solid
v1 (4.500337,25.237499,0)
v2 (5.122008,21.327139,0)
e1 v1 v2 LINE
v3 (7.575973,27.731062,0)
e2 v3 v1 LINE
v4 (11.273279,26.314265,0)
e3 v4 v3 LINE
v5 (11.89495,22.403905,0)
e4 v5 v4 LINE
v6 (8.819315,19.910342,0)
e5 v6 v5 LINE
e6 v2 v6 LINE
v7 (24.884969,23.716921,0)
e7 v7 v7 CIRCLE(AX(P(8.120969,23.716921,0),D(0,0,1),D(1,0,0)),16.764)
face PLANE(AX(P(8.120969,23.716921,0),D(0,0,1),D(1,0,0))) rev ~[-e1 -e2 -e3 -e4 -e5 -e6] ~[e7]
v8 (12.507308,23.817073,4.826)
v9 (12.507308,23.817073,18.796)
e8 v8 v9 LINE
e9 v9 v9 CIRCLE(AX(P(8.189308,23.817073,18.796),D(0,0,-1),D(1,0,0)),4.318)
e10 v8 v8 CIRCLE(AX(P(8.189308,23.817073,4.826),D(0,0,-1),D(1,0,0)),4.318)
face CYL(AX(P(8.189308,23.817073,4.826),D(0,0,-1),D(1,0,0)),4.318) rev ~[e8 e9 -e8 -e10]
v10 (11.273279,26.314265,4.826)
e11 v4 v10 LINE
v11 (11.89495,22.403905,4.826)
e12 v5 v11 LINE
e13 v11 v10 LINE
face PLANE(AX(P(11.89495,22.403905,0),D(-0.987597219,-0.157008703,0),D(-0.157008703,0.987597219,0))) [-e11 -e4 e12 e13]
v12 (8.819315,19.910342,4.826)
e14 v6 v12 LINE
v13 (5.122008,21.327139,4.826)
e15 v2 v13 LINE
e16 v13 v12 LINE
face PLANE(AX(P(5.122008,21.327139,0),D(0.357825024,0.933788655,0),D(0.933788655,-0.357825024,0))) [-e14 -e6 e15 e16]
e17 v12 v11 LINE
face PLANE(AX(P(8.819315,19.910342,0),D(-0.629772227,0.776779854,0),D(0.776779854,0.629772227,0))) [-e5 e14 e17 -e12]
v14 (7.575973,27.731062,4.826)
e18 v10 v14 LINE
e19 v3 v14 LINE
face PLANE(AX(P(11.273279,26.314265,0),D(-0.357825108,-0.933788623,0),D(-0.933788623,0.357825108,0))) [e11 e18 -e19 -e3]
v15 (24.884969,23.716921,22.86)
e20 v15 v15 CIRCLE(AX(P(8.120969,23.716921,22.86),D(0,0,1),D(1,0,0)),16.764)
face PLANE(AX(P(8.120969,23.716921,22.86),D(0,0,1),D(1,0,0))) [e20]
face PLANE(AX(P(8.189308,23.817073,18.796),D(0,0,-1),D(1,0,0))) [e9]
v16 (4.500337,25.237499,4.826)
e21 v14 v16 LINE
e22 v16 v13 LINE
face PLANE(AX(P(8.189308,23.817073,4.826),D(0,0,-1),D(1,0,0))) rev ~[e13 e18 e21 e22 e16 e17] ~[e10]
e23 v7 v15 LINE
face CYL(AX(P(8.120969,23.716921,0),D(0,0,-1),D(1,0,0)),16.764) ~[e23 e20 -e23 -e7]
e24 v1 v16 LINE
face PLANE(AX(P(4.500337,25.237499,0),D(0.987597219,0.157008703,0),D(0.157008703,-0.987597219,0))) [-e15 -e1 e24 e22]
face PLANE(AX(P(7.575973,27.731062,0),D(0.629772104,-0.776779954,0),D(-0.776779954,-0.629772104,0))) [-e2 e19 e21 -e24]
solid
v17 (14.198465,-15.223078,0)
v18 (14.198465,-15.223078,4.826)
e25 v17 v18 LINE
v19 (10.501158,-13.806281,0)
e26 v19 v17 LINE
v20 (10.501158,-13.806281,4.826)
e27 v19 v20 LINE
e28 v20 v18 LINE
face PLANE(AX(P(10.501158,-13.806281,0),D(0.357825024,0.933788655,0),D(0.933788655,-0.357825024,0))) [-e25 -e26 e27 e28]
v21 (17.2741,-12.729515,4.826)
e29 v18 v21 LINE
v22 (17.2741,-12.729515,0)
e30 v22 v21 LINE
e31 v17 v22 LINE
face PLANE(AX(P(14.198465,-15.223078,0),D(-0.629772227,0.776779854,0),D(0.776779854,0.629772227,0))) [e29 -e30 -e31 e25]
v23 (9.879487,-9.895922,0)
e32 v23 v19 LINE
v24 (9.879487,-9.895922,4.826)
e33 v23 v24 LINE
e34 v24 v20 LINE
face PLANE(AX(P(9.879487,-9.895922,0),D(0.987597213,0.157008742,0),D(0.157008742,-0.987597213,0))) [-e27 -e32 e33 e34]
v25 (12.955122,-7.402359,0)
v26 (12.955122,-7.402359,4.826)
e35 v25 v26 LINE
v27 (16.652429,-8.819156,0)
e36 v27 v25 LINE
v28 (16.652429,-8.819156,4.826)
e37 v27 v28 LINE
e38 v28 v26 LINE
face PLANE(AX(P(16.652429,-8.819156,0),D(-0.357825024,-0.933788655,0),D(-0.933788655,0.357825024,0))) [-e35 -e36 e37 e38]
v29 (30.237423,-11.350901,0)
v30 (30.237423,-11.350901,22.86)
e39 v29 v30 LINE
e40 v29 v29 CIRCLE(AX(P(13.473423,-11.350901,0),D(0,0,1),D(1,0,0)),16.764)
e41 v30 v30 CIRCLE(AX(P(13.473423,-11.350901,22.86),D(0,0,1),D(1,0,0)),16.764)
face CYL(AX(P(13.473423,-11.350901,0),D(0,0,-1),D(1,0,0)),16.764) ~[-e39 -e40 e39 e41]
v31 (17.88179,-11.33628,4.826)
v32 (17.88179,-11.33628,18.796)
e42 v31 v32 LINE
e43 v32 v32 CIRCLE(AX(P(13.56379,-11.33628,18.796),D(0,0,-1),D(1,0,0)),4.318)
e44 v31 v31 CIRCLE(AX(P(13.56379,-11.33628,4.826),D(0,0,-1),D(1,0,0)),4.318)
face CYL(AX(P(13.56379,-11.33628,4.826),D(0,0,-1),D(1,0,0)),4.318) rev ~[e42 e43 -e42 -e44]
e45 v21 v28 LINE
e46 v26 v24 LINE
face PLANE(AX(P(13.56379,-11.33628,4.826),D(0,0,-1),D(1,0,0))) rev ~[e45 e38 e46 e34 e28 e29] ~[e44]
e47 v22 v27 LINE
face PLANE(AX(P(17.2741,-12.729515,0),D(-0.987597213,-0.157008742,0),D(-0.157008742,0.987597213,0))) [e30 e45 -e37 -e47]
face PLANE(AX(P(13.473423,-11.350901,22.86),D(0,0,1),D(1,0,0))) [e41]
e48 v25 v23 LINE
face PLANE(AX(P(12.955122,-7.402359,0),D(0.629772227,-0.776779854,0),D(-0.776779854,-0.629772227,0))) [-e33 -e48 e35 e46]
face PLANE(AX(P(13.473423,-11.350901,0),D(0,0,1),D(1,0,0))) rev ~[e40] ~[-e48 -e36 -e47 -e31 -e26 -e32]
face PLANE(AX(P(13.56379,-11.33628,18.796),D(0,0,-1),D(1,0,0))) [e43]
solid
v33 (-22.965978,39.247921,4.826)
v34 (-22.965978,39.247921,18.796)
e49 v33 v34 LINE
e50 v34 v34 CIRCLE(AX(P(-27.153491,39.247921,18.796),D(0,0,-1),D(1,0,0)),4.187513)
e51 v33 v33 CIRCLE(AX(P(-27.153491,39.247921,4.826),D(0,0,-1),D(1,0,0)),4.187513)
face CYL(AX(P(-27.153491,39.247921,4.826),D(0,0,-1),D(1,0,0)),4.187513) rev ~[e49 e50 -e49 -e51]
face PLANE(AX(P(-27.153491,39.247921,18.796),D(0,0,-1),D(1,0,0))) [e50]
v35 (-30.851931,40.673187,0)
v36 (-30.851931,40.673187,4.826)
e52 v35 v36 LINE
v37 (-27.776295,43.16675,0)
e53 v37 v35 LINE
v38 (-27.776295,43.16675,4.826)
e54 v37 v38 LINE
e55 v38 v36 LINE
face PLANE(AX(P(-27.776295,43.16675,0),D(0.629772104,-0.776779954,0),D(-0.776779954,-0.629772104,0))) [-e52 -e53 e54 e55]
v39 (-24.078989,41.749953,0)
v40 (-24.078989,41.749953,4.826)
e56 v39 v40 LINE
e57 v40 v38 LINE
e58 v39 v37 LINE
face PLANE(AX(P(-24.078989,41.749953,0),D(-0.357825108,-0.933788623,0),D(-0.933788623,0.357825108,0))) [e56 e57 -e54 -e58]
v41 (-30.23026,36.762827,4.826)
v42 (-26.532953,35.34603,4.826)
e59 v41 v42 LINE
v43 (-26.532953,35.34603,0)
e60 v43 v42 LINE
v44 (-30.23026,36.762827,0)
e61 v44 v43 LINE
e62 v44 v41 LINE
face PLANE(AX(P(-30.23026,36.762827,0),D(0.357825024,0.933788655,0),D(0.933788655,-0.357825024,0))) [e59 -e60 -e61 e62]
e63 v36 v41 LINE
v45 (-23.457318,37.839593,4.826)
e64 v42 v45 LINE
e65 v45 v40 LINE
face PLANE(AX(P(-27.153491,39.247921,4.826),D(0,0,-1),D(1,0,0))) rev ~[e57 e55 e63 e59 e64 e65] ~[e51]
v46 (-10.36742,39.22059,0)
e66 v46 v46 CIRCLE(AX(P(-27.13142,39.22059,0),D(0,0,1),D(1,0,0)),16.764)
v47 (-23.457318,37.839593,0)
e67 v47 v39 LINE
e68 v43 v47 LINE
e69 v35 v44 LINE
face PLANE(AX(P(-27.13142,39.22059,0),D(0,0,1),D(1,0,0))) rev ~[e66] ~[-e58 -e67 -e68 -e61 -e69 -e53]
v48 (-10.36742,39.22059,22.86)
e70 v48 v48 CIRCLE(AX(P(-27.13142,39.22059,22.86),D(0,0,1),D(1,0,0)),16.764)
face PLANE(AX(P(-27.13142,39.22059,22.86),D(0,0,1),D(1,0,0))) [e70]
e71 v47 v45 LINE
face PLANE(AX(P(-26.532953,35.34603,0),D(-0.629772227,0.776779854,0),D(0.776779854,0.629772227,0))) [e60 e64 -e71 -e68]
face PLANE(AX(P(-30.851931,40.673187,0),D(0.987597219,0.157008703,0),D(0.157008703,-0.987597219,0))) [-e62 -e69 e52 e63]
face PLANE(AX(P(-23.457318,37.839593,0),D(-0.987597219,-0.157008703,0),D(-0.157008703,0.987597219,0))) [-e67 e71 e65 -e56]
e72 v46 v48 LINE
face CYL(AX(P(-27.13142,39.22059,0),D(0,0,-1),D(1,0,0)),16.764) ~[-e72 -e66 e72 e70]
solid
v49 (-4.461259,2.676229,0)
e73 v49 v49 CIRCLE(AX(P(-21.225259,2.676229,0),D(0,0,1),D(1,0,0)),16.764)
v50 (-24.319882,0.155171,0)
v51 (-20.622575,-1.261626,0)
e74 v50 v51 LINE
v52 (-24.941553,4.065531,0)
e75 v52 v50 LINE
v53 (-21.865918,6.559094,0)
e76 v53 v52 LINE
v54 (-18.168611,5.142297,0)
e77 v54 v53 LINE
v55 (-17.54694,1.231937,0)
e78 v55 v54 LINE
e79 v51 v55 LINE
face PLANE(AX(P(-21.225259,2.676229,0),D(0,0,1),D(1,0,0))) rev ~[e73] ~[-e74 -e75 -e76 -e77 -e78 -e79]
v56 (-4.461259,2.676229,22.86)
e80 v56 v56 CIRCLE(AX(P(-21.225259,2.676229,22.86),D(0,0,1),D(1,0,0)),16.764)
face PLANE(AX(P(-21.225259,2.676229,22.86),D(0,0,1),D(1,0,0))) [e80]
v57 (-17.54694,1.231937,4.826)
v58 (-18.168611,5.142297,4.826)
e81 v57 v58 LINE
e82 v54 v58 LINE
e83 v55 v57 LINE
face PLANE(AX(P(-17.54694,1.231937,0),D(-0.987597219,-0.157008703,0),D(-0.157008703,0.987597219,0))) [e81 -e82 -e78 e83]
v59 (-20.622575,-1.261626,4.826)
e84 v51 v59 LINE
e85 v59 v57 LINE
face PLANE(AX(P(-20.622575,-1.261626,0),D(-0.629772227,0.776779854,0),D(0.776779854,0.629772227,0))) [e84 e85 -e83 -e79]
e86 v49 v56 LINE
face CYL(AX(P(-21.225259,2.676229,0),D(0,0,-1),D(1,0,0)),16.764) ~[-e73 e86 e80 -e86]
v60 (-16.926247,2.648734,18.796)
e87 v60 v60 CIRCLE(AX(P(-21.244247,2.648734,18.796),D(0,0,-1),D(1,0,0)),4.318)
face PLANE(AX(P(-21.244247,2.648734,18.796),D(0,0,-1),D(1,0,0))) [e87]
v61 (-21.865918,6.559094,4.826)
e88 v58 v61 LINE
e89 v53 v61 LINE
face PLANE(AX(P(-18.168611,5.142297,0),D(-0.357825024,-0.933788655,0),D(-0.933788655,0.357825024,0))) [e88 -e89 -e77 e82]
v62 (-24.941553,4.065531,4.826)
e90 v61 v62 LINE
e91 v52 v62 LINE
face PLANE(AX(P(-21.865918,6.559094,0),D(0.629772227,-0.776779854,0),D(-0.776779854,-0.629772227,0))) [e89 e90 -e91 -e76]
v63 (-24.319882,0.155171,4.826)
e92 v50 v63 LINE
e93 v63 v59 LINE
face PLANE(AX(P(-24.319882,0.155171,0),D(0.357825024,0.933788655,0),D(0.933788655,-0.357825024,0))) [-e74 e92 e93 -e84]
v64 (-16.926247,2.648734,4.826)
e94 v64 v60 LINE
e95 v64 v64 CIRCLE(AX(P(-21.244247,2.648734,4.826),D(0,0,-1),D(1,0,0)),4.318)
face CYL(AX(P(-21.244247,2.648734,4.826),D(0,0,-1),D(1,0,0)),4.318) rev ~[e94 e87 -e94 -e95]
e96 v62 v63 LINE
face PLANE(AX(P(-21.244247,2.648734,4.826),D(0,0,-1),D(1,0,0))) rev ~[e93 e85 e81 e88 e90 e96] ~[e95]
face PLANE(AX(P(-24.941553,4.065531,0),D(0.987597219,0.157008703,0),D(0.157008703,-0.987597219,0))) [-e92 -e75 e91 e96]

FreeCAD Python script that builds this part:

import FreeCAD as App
import Part
import Sketcher
Q = App.Units.Quantity


def add_polygon(sketch, points):
    """Adds a closed chain of lines whose ends are joined by coincident constraints."""
    first, n = sketch.GeometryCount, len(points)
    for a, b in zip(points, points[1:] + points[:1]):
        sketch.addGeometry(Part.LineSegment(App.Vector(*a, 0), App.Vector(*b, 0)), False)
    for i in range(n):
        sketch.addConstraint(Sketcher.Constraint("Coincident", first + i, 2, first + (i + 1) % n, 1))

doc = App.newDocument("Part")
body = doc.addObject("PartDesign::Body", "Body")
body.AllowCompound = True

# Sketch on XY plane
sketch1 = body.newObject("Sketcher::SketchObject", "Sketch")
sketch1.AttachmentSupport = (doc.getObject("XY_Plane"), [""])
sketch1.MapMode = "FlatFace"
sketch1.addGeometry(Part.Circle(App.Vector(-27, 39, 0), App.Vector(0, 0, 1), 17), False)
sketch1.addGeometry(Part.Circle(App.Vector(8, 24, 0), App.Vector(0, 0, 1), 17), False)
sketch1.addGeometry(Part.Circle(App.Vector(-21, 3, 0), App.Vector(0, 0, 1), 17), False)
sketch1.addGeometry(Part.Circle(App.Vector(13, -11, 0), App.Vector(0, 0, 1), 17), False)
sketch1.addConstraint(Sketcher.Constraint("Equal", 0, 1))
sketch1.addConstraint(Sketcher.Constraint("Equal", 1, 2))
sketch1.addConstraint(Sketcher.Constraint("Equal", 2, 3))
sketch1.addConstraint(Sketcher.Constraint("Diameter", 0, Q("1.32 in")))
sketch1.addConstraint(Sketcher.Constraint("DistanceY", 3, 3, -1, 1, Q("11.350901 mm")))
sketch1.addConstraint(Sketcher.Constraint("DistanceX", 0, 3, -1, 1, Q("27.13142 mm")))
sketch1.addConstraint(Sketcher.Constraint("DistanceY", -1, 1, 0, 3, Q("39.22059 mm")))
sketch1.addConstraint(Sketcher.Constraint("DistanceX", -1, 1, 1, 3, Q("8.120969 mm")))
sketch1.addConstraint(Sketcher.Constraint("DistanceY", -1, 1, 1, 3, Q("23.716921 mm")))
sketch1.addConstraint(Sketcher.Constraint("DistanceX", 2, 3, -1, 1, Q("21.225259 mm")))
sketch1.addConstraint(Sketcher.Constraint("DistanceY", -1, 1, 2, 3, Q("2.676229 mm")))
sketch1.addConstraint(Sketcher.Constraint("DistanceX", -1, 1, 3, 3, Q("13.473423 mm")))
pad1 = body.newObject("PartDesign::Pad", "Pad")
pad1.Profile = sketch1
pad1.Length = Q("0.9 in")

# Sketch on XY plane
sketch2 = body.newObject("Sketcher::SketchObject", "Sketch001")
sketch2.AttachmentSupport = (doc.getObject("XY_Plane"), [""])
sketch2.MapMode = "FlatFace"
add_polygon(sketch2, [(-23.5, 37.8), (-24.1, 41.7), (-27.8, 43.2), (-30.9, 40.7), (-30.2, 36.8), (-26.5, 35.3)])  # lines 0-5
add_polygon(sketch2, [(11.9, 22.4), (11.3, 26.3), (7.6, 27.7), (4.5, 25.2), (5.1, 21.3), (8.8, 19.9)])  # lines 6-11
add_polygon(sketch2, [(-17.5, 1.2), (-18.2, 5.1), (-21.9, 6.6), (-24.9, 4.1), (-24.3, 0.2), (-20.6, -1.3)])  # lines 12-17
add_polygon(sketch2, [(17.3, -12.7), (16.7, -8.8), (13, -7.4), (9.9, -9.9), (10.5, -13.8), (14.2, -15.2)])  # lines 18-23
sketch2.addConstraint(Sketcher.Constraint("Parallel", 0, 3))
sketch2.addConstraint(Sketcher.Constraint("Parallel", 1, 4))
sketch2.addConstraint(Sketcher.Constraint("Parallel", 2, 5))
sketch2.addConstraint(Sketcher.Constraint("Parallel", 3, 6))
sketch2.addConstraint(Sketcher.Constraint("Parallel", 4, 7))
sketch2.addConstraint(Sketcher.Constraint("Parallel", 5, 8))
sketch2.addConstraint(Sketcher.Constraint("Parallel", 6, 9))
sketch2.addConstraint(Sketcher.Constraint("Parallel", 7, 10))
sketch2.addConstraint(Sketcher.Constraint("Parallel", 8, 11))
sketch2.addConstraint(Sketcher.Constraint("Parallel", 9, 12))
sketch2.addConstraint(Sketcher.Constraint("Parallel", 10, 13))
sketch2.addConstraint(Sketcher.Constraint("Parallel", 11, 14))
sketch2.addConstraint(Sketcher.Constraint("Parallel", 12, 15))
sketch2.addConstraint(Sketcher.Constraint("Parallel", 13, 16))
sketch2.addConstraint(Sketcher.Constraint("Parallel", 14, 17))
sketch2.addConstraint(Sketcher.Constraint("Parallel", 15, 18))
sketch2.addConstraint(Sketcher.Constraint("Parallel", 16, 19))
sketch2.addConstraint(Sketcher.Constraint("Parallel", 17, 20))
sketch2.addConstraint(Sketcher.Constraint("Parallel", 18, 21))
sketch2.addConstraint(Sketcher.Constraint("Parallel", 19, 22))
sketch2.addConstraint(Sketcher.Constraint("Parallel", 20, 23))
sketch2.addConstraint(Sketcher.Constraint("Equal", 0, 1))
sketch2.addConstraint(Sketcher.Constraint("Equal", 1, 2))
sketch2.addConstraint(Sketcher.Constraint("Equal", 2, 3))
sketch2.addConstraint(Sketcher.Constraint("Equal", 5, 6))
sketch2.addConstraint(Sketcher.Constraint("Equal", 6, 7))
sketch2.addConstraint(Sketcher.Constraint("Equal", 7, 8))
sketch2.addConstraint(Sketcher.Constraint("Equal", 8, 9))
sketch2.addConstraint(Sketcher.Constraint("Equal", 11, 12))
sketch2.addConstraint(Sketcher.Constraint("Equal", 12, 13))
sketch2.addConstraint(Sketcher.Constraint("Equal", 13, 14))
sketch2.addConstraint(Sketcher.Constraint("Equal", 14, 15))
sketch2.addConstraint(Sketcher.Constraint("Equal", 17, 18))
sketch2.addConstraint(Sketcher.Constraint("Equal", 18, 19))
sketch2.addConstraint(Sketcher.Constraint("Equal", 19, 20))
sketch2.addConstraint(Sketcher.Constraint("Equal", 20, 21))
sketch2.addConstraint(Sketcher.Constraint("DistanceY", -1, 1, 8, 2, Q("25.237499 mm")))
sketch2.addConstraint(Sketcher.Constraint("DistanceX", -1, 1, 23, 2, Q("17.2741 mm")))
sketch2.addConstraint(Sketcher.Constraint("DistanceX", 5, 2, 13, 2, Q("1.5914 mm")))
sketch2.addConstraint(Sketcher.Constraint("DistanceY", 13, 2, 5, 2, Q("31.280499 mm")))
sketch2.addConstraint(Sketcher.Constraint("DistanceY", 19, 2, 10, 2, Q("27.312701 mm")))
sketch2.addConstraint(Sketcher.Constraint("Distance", 0, Q("3.959468 mm")))
sketch2.addConstraint(Sketcher.Constraint("DistanceX", 0, 2, -1, 1, Q("24.078989 mm")))
sketch2.addConstraint(Sketcher.Constraint("DistanceY", -1, 1, 1, 2, Q("43.16675 mm")))
sketch2.addConstraint(Sketcher.Constraint("DistanceX", 2, 2, -1, 1, Q("30.851931 mm")))
sketch2.addConstraint(Sketcher.Constraint("DistanceX", 3, 2, -1, 1, Q("30.23026 mm")))
sketch2.addConstraint(Sketcher.Constraint("DistanceY", -1, 1, 4, 2, Q("35.34603 mm")))
sketch2.addConstraint(Sketcher.Constraint("DistanceX", -1, 1, 6, 2, Q("11.273279 mm")))
pocket1 = body.newObject("PartDesign::Pocket", "Pocket")
pocket1.Profile = sketch2
pocket1.Length = Q("0.19 in")
pocket1.Reversed = True

# Sketch on XY plane
sketch3 = body.newObject("Sketcher::SketchObject", "Sketch002")
sketch3.AttachmentSupport = (doc.getObject("XY_Plane"), [""])
sketch3.MapMode = "FlatFace"
sketch3.AttachmentOffset = App.Placement(App.Vector(0, 0, 0.19 * 25.4), App.Rotation())
sketch3.addGeometry(Part.Circle(App.Vector(-21.2, 2.6, 0), App.Vector(0, 0, 1), 4.3), False)
sketch3.addGeometry(Part.Circle(App.Vector(13.6, -11.3, 0), App.Vector(0, 0, 1), 4.3), False)
sketch3.addGeometry(Part.Circle(App.Vector(8.2, 23.8, 0), App.Vector(0, 0, 1), 4.3), False)
sketch3.addGeometry(Part.Circle(App.Vector(-27.2, 39.2, 0), App.Vector(0, 0, 1), 4.2), False)
sketch3.addConstraint(Sketcher.Constraint("Equal", 0, 1))
sketch3.addConstraint(Sketcher.Constraint("Equal", 1, 2))
sketch3.addConstraint(Sketcher.Constraint("Diameter", 0, Q("0.34 in")))
sketch3.addConstraint(Sketcher.Constraint("Diameter", 3, Q("8.375026 mm")))
sketch3.addConstraint(Sketcher.Constraint("DistanceX", 3, 3, 2, 3, Q("35.342799 mm")))
sketch3.addConstraint(Sketcher.Constraint("DistanceY", 1, 3, 3, 3, Q("50.584201 mm")))
sketch3.addConstraint(Sketcher.Constraint("DistanceX", -1, 1, 1, 3, Q("13.56379 mm")))
sketch3.addConstraint(Sketcher.Constraint("DistanceY", 1, 3, -1, 1, Q("11.33628 mm")))
sketch3.addConstraint(Sketcher.Constraint("DistanceX", 3, 3, -1, 1, Q("27.153491 mm")))
sketch3.addConstraint(Sketcher.Constraint("DistanceY", 0, 3, 2, 3, Q("21.168339 mm")))
sketch3.addConstraint(Sketcher.Constraint("DistanceX", 0, 3, -1, 1, Q("21.244247 mm")))
sketch3.addConstraint(Sketcher.Constraint("DistanceY", -1, 1, 0, 3, Q("2.648734 mm")))
pocket2 = body.newObject("PartDesign::Pocket", "Pocket001")
pocket2.Profile = sketch3
pocket2.Length = Q("0.55 in")
pocket2.Reversed = True

doc.recompute()
